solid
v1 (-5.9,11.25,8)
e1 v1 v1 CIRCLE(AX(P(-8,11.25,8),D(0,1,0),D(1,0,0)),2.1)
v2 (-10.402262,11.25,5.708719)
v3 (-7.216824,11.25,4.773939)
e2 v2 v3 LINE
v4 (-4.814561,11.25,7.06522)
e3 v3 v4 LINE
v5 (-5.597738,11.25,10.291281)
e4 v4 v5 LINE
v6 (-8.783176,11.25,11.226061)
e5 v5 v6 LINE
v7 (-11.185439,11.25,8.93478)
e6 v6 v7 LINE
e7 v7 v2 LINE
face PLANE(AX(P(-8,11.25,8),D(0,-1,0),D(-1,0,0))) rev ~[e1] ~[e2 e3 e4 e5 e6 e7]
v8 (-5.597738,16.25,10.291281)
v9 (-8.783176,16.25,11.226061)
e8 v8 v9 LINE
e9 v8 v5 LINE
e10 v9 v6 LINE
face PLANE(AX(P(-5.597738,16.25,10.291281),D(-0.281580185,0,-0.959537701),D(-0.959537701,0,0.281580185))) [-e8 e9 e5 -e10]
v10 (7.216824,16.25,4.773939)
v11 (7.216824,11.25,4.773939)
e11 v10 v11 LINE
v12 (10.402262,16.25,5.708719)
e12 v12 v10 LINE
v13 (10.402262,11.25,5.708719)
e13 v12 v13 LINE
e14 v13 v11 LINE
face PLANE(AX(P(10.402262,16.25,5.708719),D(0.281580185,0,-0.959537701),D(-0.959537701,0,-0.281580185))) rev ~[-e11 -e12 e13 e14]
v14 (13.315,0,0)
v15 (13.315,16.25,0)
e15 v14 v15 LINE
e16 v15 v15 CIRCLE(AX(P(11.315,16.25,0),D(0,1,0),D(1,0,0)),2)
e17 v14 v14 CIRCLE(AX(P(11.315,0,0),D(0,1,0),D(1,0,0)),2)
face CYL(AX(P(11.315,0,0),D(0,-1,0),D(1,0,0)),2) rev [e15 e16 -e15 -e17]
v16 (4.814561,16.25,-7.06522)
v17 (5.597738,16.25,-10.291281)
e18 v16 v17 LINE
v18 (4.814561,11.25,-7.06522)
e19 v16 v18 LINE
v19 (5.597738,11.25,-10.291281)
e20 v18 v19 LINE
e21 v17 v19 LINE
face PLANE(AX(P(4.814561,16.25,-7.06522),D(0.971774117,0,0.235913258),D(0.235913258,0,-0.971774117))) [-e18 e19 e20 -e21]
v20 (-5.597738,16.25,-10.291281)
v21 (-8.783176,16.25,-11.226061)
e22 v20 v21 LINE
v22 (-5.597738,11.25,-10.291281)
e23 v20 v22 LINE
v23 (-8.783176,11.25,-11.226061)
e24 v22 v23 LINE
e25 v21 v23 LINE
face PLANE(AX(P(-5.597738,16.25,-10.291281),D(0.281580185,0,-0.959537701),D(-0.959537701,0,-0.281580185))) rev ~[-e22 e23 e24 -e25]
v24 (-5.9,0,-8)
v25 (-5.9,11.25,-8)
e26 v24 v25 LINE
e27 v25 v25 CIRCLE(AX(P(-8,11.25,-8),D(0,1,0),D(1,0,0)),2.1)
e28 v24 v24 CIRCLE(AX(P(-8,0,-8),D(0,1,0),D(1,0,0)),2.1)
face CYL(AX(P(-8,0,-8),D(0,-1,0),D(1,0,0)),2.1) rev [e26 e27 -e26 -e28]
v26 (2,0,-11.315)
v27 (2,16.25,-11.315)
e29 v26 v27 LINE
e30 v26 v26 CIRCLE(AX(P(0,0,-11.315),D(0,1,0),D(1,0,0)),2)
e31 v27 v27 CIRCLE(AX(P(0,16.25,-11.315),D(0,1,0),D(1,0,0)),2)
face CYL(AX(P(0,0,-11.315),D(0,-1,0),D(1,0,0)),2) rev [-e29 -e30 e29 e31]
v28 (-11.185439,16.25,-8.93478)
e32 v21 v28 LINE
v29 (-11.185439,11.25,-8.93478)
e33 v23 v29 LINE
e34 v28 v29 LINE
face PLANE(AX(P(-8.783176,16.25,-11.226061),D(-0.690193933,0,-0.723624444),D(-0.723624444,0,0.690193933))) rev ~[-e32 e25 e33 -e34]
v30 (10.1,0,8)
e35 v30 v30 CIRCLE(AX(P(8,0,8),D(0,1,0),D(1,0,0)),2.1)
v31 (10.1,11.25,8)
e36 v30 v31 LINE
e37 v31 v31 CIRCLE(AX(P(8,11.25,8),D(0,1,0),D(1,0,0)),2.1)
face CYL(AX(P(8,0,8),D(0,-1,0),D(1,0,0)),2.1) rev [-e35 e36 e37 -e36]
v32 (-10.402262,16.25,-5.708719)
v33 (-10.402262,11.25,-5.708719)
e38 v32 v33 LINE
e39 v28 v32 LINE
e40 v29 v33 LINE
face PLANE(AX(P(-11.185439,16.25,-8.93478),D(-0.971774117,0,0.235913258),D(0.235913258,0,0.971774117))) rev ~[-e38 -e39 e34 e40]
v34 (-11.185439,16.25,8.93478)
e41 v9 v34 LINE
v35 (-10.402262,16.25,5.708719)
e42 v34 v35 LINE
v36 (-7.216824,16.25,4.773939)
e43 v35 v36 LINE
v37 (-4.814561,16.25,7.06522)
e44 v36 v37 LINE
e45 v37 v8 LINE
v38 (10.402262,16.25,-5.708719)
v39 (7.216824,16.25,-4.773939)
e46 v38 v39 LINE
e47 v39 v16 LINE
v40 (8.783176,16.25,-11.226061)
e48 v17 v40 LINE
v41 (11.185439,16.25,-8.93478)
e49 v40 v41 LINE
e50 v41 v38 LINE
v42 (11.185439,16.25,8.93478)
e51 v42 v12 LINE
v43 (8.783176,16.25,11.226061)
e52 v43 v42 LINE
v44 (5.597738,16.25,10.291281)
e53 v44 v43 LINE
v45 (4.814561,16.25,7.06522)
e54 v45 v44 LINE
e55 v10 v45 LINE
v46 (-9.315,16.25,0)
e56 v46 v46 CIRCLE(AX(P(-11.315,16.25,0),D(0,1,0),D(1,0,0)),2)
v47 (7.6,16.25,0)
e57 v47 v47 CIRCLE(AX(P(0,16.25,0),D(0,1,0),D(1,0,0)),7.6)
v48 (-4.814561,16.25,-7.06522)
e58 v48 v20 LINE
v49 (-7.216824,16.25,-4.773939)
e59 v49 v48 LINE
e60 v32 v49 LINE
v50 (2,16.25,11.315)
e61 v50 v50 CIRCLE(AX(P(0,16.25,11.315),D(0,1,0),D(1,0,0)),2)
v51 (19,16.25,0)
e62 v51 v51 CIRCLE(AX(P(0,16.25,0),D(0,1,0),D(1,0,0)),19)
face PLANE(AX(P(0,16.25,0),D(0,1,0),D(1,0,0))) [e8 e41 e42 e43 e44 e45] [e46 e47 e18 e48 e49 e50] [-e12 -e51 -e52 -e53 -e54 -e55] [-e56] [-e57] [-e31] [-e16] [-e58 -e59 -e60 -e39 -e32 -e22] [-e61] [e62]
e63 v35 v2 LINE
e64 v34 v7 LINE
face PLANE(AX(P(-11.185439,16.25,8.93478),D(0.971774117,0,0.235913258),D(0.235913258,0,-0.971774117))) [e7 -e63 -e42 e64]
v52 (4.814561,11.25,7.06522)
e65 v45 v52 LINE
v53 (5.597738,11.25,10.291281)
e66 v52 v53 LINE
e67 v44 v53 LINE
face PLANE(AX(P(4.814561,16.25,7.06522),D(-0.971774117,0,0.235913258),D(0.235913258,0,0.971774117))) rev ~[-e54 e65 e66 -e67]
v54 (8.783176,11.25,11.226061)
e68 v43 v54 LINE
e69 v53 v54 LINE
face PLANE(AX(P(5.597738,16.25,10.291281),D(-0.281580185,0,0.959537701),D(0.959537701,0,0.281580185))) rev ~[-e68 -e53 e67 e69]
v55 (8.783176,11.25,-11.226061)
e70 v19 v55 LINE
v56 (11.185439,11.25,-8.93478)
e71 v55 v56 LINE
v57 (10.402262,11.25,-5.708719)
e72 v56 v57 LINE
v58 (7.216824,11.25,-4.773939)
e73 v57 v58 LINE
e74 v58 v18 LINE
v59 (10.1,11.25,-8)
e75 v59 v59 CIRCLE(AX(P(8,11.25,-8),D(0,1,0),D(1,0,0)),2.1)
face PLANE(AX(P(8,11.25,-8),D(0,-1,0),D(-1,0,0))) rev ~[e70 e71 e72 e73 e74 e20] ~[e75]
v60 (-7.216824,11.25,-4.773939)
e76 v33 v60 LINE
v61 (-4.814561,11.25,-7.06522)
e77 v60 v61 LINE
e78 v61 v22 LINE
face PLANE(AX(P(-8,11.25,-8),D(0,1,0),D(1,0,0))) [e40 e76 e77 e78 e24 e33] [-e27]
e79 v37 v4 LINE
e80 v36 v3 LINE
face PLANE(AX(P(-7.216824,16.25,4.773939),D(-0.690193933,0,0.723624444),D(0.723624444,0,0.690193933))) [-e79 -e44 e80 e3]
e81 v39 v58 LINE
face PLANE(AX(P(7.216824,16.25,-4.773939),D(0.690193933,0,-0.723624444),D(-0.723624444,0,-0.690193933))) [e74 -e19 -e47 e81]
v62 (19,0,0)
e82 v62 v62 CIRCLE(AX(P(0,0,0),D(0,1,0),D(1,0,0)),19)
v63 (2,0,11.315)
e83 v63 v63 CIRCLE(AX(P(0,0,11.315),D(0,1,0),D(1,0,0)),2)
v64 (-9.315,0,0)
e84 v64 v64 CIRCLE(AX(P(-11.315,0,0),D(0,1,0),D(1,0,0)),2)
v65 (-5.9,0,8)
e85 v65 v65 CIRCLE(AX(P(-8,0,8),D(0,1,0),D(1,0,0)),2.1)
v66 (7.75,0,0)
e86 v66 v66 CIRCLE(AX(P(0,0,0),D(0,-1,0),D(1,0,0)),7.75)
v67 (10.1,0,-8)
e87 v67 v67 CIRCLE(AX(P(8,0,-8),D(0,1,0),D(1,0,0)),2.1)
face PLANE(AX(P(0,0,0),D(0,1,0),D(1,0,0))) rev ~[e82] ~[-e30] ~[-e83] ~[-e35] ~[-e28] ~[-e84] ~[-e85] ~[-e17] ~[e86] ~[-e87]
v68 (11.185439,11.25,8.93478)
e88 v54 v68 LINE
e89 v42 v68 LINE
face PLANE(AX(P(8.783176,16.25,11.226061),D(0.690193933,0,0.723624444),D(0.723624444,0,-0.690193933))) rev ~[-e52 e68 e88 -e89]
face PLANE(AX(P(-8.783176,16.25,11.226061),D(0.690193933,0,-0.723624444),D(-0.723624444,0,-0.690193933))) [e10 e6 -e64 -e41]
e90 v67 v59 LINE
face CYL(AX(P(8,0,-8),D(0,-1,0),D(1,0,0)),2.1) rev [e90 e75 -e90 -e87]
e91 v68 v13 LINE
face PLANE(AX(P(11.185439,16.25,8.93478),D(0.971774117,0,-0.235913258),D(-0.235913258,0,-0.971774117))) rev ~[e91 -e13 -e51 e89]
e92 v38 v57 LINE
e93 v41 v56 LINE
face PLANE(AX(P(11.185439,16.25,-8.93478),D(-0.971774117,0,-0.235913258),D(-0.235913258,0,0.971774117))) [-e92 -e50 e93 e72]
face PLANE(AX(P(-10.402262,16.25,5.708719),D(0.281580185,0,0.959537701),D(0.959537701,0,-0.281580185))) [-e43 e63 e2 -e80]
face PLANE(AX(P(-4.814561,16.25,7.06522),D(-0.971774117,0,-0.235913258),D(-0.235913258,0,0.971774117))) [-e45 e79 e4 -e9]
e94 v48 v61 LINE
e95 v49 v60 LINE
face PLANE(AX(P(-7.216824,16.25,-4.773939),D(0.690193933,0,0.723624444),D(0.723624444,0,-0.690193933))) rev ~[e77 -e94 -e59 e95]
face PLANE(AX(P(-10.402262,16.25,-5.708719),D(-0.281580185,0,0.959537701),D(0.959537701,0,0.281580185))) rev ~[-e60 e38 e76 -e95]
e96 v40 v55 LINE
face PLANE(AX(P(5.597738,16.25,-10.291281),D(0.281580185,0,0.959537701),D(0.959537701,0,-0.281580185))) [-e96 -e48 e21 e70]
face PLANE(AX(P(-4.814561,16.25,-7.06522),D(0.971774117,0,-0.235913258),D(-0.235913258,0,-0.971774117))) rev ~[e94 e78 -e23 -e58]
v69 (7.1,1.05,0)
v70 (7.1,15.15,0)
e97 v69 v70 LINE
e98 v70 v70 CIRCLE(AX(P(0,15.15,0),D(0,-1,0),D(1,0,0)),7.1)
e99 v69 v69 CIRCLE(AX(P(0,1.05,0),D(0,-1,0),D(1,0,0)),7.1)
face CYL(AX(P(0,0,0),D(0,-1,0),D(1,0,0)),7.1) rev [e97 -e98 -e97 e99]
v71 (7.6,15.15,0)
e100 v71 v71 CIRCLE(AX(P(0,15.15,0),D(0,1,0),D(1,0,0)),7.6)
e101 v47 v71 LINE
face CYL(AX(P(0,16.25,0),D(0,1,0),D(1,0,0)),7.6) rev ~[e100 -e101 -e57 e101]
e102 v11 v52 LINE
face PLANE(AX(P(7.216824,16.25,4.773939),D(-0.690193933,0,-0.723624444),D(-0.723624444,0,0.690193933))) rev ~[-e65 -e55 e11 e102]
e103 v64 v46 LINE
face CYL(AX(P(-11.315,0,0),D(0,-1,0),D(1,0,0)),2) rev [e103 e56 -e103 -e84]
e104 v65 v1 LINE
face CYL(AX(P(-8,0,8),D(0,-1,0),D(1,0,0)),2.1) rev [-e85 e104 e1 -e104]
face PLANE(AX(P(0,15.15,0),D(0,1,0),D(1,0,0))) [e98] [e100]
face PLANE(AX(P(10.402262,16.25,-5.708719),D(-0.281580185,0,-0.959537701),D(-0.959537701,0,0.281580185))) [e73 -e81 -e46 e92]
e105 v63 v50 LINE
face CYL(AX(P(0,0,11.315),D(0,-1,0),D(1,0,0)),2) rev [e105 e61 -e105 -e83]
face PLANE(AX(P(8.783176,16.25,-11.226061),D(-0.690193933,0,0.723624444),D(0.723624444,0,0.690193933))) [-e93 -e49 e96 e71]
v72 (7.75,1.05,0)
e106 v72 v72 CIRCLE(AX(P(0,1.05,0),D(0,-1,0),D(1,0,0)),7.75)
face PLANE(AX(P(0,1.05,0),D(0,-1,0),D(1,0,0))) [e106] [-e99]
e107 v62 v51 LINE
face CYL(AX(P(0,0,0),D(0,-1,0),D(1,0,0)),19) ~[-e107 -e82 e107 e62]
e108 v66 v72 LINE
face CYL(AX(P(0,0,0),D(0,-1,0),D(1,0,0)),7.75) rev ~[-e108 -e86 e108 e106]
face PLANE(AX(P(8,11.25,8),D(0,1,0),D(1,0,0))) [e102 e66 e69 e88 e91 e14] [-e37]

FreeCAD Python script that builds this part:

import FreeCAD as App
import Part
import Sketcher

V = App.Vector

doc = App.newDocument("Part")
body = doc.addObject("PartDesign::Body", "Body")

# Sketch on XZ plane
sketch1 = body.newObject("Sketcher::SketchObject", "Sketch")
sketch1.AttachmentSupport = (doc.getObject("XZ_Plane"), [""])
sketch1.MapMode = "FlatFace"
sketch1.addGeometry([
    Part.Circle(V(0, 0, 0), V(0, 0, 1), 19),  # 0
    Part.Circle(V(-8, 8, 0), V(0, 0, 1), 2.1),  # 1
    Part.Circle(V(0, 11.3, 0), V(0, 0, 1), 2),  # 2
    Part.Circle(V(8, 8, 0), V(0, 0, 1), 2.1),  # 3
    Part.Circle(V(-11.3, 0, 0), V(0, 0, 1), 2),  # 4
    Part.Circle(V(-8, -8, 0), V(0, 0, 1), 2.1),  # 5
    Part.Circle(V(0, 0, 0), V(0, 0, 1), 7.1),  # 6
    Part.Circle(V(11.3, 0, 0), V(0, 0, 1), 2),  # 7
    Part.Circle(V(0, -11.3, 0), V(0, 0, 1), 2),  # 8
    Part.Circle(V(8, -8, 0), V(0, 0, 1), 2.1),  # 9
], False)
sketch1.addConstraint([
    Sketcher.Constraint("Coincident", 0, 3, -1, 1),
    Sketcher.Constraint("Coincident", 6, 3, -1, 1),
    Sketcher.Constraint("Equal", 1, 3),
    Sketcher.Constraint("Equal", 2, 4),
    Sketcher.Constraint("Equal", 3, 5),
    Sketcher.Constraint("Equal", 4, 7),
    Sketcher.Constraint("Equal", 7, 8),
    Sketcher.Constraint("Equal", 5, 9),
    Sketcher.Constraint("Symmetric", 3, 3, 5, 3, -1, 1),
    Sketcher.Constraint("Symmetric", 4, 3, 7, 3, -1, 1),
    Sketcher.Constraint("Symmetric", 2, 3, 8, 3, -1, 1),
    Sketcher.Constraint("Symmetric", 1, 3, 9, 3, -1, 1),
    Sketcher.Constraint("Symmetric", 1, 3, 3, 3, -2),
    Sketcher.Constraint("PointOnObject", 2, 3, -2),
    Sketcher.Constraint("PointOnObject", 4, 3, -1),
    Sketcher.Constraint("Diameter", 0, 38.0),
    Sketcher.Constraint("Diameter", 2, 4.0),
    Sketcher.Constraint("Diameter", 1, 4.2),
    Sketcher.Constraint("Diameter", 6, 14.2),
    Sketcher.Constraint("DistanceX", 1, 3, -1, 1, 8.0),
    Sketcher.Constraint("DistanceY", -1, 1, 1, 3, 8.0),
    Sketcher.Constraint("DistanceY", -1, 1, 2, 3, 11.315),
    Sketcher.Constraint("DistanceX", 4, 3, -1, 1, 11.315),
])
pad1 = body.newObject("PartDesign::Pad", "Pad")
pad1.Profile = sketch1
pad1.Length = 16.25
pad1.Reversed = True

# Sketch on XZ plane
sketch2 = body.newObject("Sketcher::SketchObject", "Sketch001")
sketch2.AttachmentSupport = (doc.getObject("XZ_Plane"), [""])
sketch2.MapMode = "FlatFace"
sketch2.AttachmentOffset = App.Placement(V(0, 0, -16.25), App.Rotation())
sketch2.addGeometry(Part.Circle(V(0, 0, 0), V(0, 0, 1), 8), False)
sketch2.addConstraint([
    Sketcher.Constraint("Coincident", 0, 3, -1, 1),
    Sketcher.Constraint("Diameter", 0, 15.2),
])
pocket1 = body.newObject("PartDesign::Pocket", "Pocket")
pocket1.Profile = sketch2
pocket1.Length = 1.1
pocket1.Reversed = True

# Sketch on XZ plane
sketch3 = body.newObject("Sketcher::SketchObject", "Sketch002")
sketch3.AttachmentSupport = (doc.getObject("XZ_Plane"), [""])
sketch3.MapMode = "FlatFace"
sketch3.addGeometry(Part.Circle(V(0, 0, 0), V(0, 0, 1), 8), False)
sketch3.addConstraint([
    Sketcher.Constraint("Coincident", 0, 3, -1, 1),
    Sketcher.Constraint("Diameter", 0, 15.5),
])
pocket2 = body.newObject("PartDesign::Pocket", "Pocket001")
pocket2.Profile = sketch3
pocket2.Length = 1.05

# Sketch on XZ plane
sketch4 = body.newObject("Sketcher::SketchObject", "Sketch003")
sketch4.AttachmentSupport = (doc.getObject("XZ_Plane"), [""])
sketch4.MapMode = "FlatFace"
sketch4.AttachmentOffset = App.Placement(V(0, 0, -16.25), App.Rotation())
sketch4.addGeometry([
    Part.LineSegment(V(-11.2, -8.9, 0), V(-10.4, -5.7, 0)),  # 0
    Part.LineSegment(V(-10.4, -5.7, 0), V(-7.2, -4.8, 0)),  # 1
    Part.LineSegment(V(-7.2, -4.8, 0), V(-4.8, -7.1, 0)),  # 2
    Part.LineSegment(V(-4.8, -7.1, 0), V(-5.6, -10.3, 0)),  # 3
    Part.LineSegment(V(-5.6, -10.3, 0), V(-8.8, -11.2, 0)),  # 4
    Part.LineSegment(V(-8.8, -11.2, 0), V(-11.2, -8.9, 0)),  # 5
    Part.Circle(V(-8, -8, 0), V(0, 0, 1), 2.1),  # 6
    Part.LineSegment(V(4.8, -7.1, 0), V(7.2, -4.8, 0)),  # 7
    Part.LineSegment(V(7.2, -4.8, 0), V(10.4, -5.7, 0)),  # 8
    Part.LineSegment(V(10.4, -5.7, 0), V(11.2, -8.9, 0)),  # 9
    Part.LineSegment(V(11.2, -8.9, 0), V(8.8, -11.2, 0)),  # 10
    Part.LineSegment(V(8.8, -11.2, 0), V(5.6, -10.3, 0)),  # 11
    Part.LineSegment(V(5.6, -10.3, 0), V(4.8, -7.1, 0)),  # 12
    Part.Circle(V(8, -8, 0), V(0, 0, 1), 2.1),  # 13
    Part.LineSegment(V(-4.8, 7.1, 0), V(-7.2, 4.8, 0)),  # 14
    Part.LineSegment(V(-7.2, 4.8, 0), V(-10.4, 5.7, 0)),  # 15
    Part.LineSegment(V(-10.4, 5.7, 0), V(-11.2, 8.9, 0)),  # 16
    Part.LineSegment(V(-11.2, 8.9, 0), V(-8.8, 11.2, 0)),  # 17
    Part.LineSegment(V(-8.8, 11.2, 0), V(-5.6, 10.3, 0)),  # 18
    Part.LineSegment(V(-5.6, 10.3, 0), V(-4.8, 7.1, 0)),  # 19
    Part.Circle(V(-8, 8, 0), V(0, 0, 1), 2.1),  # 20
    Part.LineSegment(V(11.2, 8.9, 0), V(10.4, 5.7, 0)),  # 21
    Part.LineSegment(V(10.4, 5.7, 0), V(7.2, 4.8, 0)),  # 22
    Part.LineSegment(V(7.2, 4.8, 0), V(4.8, 7.1, 0)),  # 23
    Part.LineSegment(V(4.8, 7.1, 0), V(5.6, 10.3, 0)),  # 24
    Part.LineSegment(V(5.6, 10.3, 0), V(8.8, 11.2, 0)),  # 25
    Part.LineSegment(V(8.8, 11.2, 0), V(11.2, 8.9, 0)),  # 26
    Part.Circle(V(8, 8, 0), V(0, 0, 1), 2.1),  # 27
], False)
sketch4.addConstraint([
    Sketcher.Constraint("Coincident", 0, 2, 1, 1),
    Sketcher.Constraint("Coincident", 1, 2, 2, 1),
    Sketcher.Constraint("Coincident", 2, 2, 3, 1),
    Sketcher.Constraint("Coincident", 3, 2, 4, 1),
    Sketcher.Constraint("Coincident", 4, 2, 5, 1),
    Sketcher.Constraint("Coincident", 5, 2, 0, 1),
    Sketcher.Constraint("Coincident", 7, 2, 8, 1),
    Sketcher.Constraint("Coincident", 8, 2, 9, 1),
    Sketcher.Constraint("Coincident", 9, 2, 10, 1),
    Sketcher.Constraint("Coincident", 10, 2, 11, 1),
    Sketcher.Constraint("Coincident", 11, 2, 12, 1),
    Sketcher.Constraint("Coincident", 12, 2, 7, 1),
    Sketcher.Constraint("Coincident", 14, 2, 15, 1),
    Sketcher.Constraint("Coincident", 15, 2, 16, 1),
    Sketcher.Constraint("Coincident", 16, 2, 17, 1),
    Sketcher.Constraint("Coincident", 17, 2, 18, 1),
    Sketcher.Constraint("Coincident", 18, 2, 19, 1),
    Sketcher.Constraint("Coincident", 19, 2, 14, 1),
    Sketcher.Constraint("Coincident", 21, 2, 22, 1),
    Sketcher.Constraint("Coincident", 22, 2, 23, 1),
    Sketcher.Constraint("Coincident", 23, 2, 24, 1),
    Sketcher.Constraint("Coincident", 24, 2, 25, 1),
    Sketcher.Constraint("Coincident", 25, 2, 26, 1),
    Sketcher.Constraint("Coincident", 26, 2, 21, 1),
    Sketcher.Constraint("Equal", 6, 13),
    Sketcher.Constraint("Equal", 13, 20),
    Sketcher.Constraint("Equal", 20, 27),
    Sketcher.Constraint("Symmetric", 13, 3, 20, 3, -1, 1),
    Sketcher.Constraint("Symmetric", 6, 3, 27, 3, -1, 1),
    Sketcher.Constraint("Symmetric", 7, 2, 14, 2, -1, 1),
    Sketcher.Constraint("Symmetric", 8, 2, 15, 2, -1, 1),
    Sketcher.Constraint("Symmetric", 9, 2, 16, 2, -1, 1),
    Sketcher.Constraint("Symmetric", 10, 2, 17, 2, -1, 1),
    Sketcher.Constraint("Symmetric", 11, 2, 18, 2, -1, 1),
    Sketcher.Constraint("Symmetric", 12, 2, 19, 2, -1, 1),
    Sketcher.Constraint("Symmetric", 0, 2, 21, 2, -1, 1),
    Sketcher.Constraint("Symmetric", 1, 2, 22, 2, -1, 1),
    Sketcher.Constraint("Symmetric", 2, 2, 23, 2, -1, 1),
    Sketcher.Constraint("Symmetric", 3, 2, 24, 2, -1, 1),
    Sketcher.Constraint("Symmetric", 4, 2, 25, 2, -1, 1),
    Sketcher.Constraint("Symmetric", 5, 2, 26, 2, -1, 1),
    Sketcher.Constraint("Symmetric", 6, 3, 13, 3, -2),
    Sketcher.Constraint("Symmetric", 1, 2, 7, 2, -2),
    Sketcher.Constraint("Symmetric", 0, 2, 8, 2, -2),
    Sketcher.Constraint("Symmetric", 5, 2, 9, 2, -2),
    Sketcher.Constraint("Symmetric", 4, 2, 10, 2, -2),
    Sketcher.Constraint("Symmetric", 3, 2, 11, 2, -2),
    Sketcher.Constraint("Symmetric", 2, 2, 12, 2, -2),
    Sketcher.Constraint("Parallel", 0, 3),
    Sketcher.Constraint("Parallel", 1, 4),
    Sketcher.Constraint("Parallel", 2, 5),
    Sketcher.Constraint("Equal", 0, 1),
    Sketcher.Constraint("Equal", 1, 2),
    Sketcher.Constraint("Equal", 2, 3),
    Sketcher.Constraint("Diameter", 6, 4.2),
    Sketcher.Constraint("DistanceX", 6, 3, -1, 1, 8.0),
    Sketcher.Constraint("DistanceY", 6, 3, -1, 1, 8.0),
    Sketcher.Constraint("DistanceX", 3, 2, 8, 2, 16.0),
    Sketcher.Constraint("DistanceY", 1, 2, 17, 2, 16.0),
    Sketcher.Constraint("DistanceX", 0, 2, 2, 2, 5.587701),
    Sketcher.Constraint("DistanceY", 2, 2, 0, 2, 1.356501),
    Sketcher.Constraint("DistanceY", 0, 2, -1, 1, 5.708719),
    Sketcher.Constraint("DistanceY", 1, 2, -1, 1, 4.773939),
])
pocket3 = body.newObject("PartDesign::Pocket", "Pocket002")
pocket3.Profile = sketch4
pocket3.Length = 5
pocket3.Reversed = True

doc.recompute()
